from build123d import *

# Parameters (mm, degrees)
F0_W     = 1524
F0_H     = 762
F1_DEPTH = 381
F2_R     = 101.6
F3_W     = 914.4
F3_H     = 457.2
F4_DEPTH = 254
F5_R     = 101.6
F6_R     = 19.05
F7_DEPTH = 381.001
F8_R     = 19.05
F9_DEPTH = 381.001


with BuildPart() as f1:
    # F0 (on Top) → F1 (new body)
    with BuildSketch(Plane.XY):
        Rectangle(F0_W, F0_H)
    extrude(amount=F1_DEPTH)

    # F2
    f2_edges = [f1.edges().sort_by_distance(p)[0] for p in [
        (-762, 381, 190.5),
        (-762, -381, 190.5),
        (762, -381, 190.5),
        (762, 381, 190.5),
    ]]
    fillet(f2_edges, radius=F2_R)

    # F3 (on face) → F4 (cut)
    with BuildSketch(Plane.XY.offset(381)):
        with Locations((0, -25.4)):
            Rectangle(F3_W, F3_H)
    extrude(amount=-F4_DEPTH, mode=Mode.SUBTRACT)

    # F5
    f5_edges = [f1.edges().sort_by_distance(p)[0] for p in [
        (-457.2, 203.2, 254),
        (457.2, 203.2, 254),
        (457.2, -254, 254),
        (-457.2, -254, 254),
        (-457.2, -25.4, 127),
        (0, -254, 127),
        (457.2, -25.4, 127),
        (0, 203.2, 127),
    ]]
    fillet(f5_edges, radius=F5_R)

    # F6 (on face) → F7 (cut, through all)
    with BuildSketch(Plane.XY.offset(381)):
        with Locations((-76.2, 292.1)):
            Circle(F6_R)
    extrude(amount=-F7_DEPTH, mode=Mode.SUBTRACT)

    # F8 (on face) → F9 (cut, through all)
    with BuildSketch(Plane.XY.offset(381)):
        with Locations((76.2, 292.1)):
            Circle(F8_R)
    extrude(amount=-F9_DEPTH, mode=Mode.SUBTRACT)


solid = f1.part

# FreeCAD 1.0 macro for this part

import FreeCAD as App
import Part
import Sketcher
from FreeCAD import Vector
Q = App.Units.Quantity


def edges_at(feature, points):
    """Names of the edges that pass closest to the given points."""
    edges = feature.Shape.Edges
    near = lambda p: min(range(len(edges)), key=lambda i: edges[i].distToShape(Part.Vertex(*p))[0])
    return sorted({f"Edge{near(p) + 1}" for p in points})


def add_polygon(sketch, points):
    """Adds a closed chain of lines whose ends are joined by coincident constraints."""
    first, n = sketch.GeometryCount, len(points)
    for a, b in zip(points, points[1:] + points[:1]):
        sketch.addGeometry(Part.LineSegment(App.Vector(*a, 0), App.Vector(*b, 0)), False)
    for i in range(n):
        sketch.addConstraint(Sketcher.Constraint("Coincident", first + i, 2, first + (i + 1) % n, 1))

doc = App.newDocument("Part")
body = doc.addObject("PartDesign::Body", "Body")

# Sketch on XY plane
sketch1 = body.newObject("Sketcher::SketchObject", "Sketch")
sketch1.AttachmentSupport = (doc.getObject("XY_Plane"), [""])
sketch1.MapMode = "FlatFace"
add_polygon(sketch1, [(-762, 381), (-762, -381), (762, -381), (762, 381)])  # lines 0-3
sketch1.addConstraint([
    Sketcher.Constraint("Vertical", 0),
    Sketcher.Constraint("Horizontal", 1),
    Sketcher.Constraint("Vertical", 2),
    Sketcher.Constraint("Horizontal", 3),
    Sketcher.Constraint("Symmetric", 0, 2, 2, 2, -1, 1),
    Sketcher.Constraint("DistanceX", 1, 1, 1, 2, Q("60 in")),
    Sketcher.Constraint("DistanceY", 0, 2, 0, 1, Q("30 in")),
])
pad1 = body.newObject("PartDesign::Pad", "Pad")
pad1.Profile = sketch1
pad1.Length = Q("15 in")
doc.recompute()

fillet = body.newObject("PartDesign::Fillet", "Fillet")
fillet.Base = (pad1, edges_at(pad1, [
    (-762, 381, 190.5),
    (-762, -381, 190.5),
    (762, -381, 190.5),
    (762, 381, 190.5),
]))
fillet.Radius = Q("4 in")

# Sketch on XY plane
sketch2 = body.newObject("Sketcher::SketchObject", "Sketch001")
sketch2.AttachmentSupport = (doc.getObject("XY_Plane"), [""])
sketch2.MapMode = "FlatFace"
sketch2.AttachmentOffset = App.Placement(Vector(0, 0, 15 * 25.4), App.Rotation())
add_polygon(sketch2, [(-457, 203), (-457, -254), (457, -254), (457, 203)])  # lines 0-3
sketch2.addConstraint([
    Sketcher.Constraint("Vertical", 0),
    Sketcher.Constraint("Horizontal", 1),
    Sketcher.Constraint("Vertical", 2),
    Sketcher.Constraint("Horizontal", 3),
    Sketcher.Constraint("DistanceX", 1, 1, 1, 2, Q("36 in")),
    Sketcher.Constraint("DistanceY", 0, 2, 0, 1, Q("18 in")),
    Sketcher.Constraint("DistanceX", 0, 2, -1, 1, Q("18 in")),
    Sketcher.Constraint("DistanceY", 0, 2, -1, 1, Q("10 in")),
])
pocket1 = body.newObject("PartDesign::Pocket", "Pocket")
pocket1.Profile = sketch2
pocket1.Length = Q("10 in")
doc.recompute()

fillet2 = body.newObject("PartDesign::Fillet", "Fillet001")
fillet2.Base = (pocket1, edges_at(pocket1, [
    (-457.2, 203.2, 254),
    (457.2, 203.2, 254),
    (457.2, -254, 254),
    (-457.2, -254, 254),
    (-457.2, -25.4, 127),
    (0, -254, 127),
    (457.2, -25.4, 127),
    (0, 203.2, 127),
]))
fillet2.Radius = Q("4 in")

# Sketch on XY plane
sketch3 = body.newObject("Sketcher::SketchObject", "Sketch002")
sketch3.AttachmentSupport = (doc.getObject("XY_Plane"), [""])
sketch3.MapMode = "FlatFace"
sketch3.AttachmentOffset = App.Placement(Vector(0, 0, 15 * 25.4), App.Rotation())
sketch3.addGeometry(Part.Circle(Vector(-76, 292, 0), Vector(0, 0, 1), 19), False)
sketch3.addConstraint([
    Sketcher.Constraint("Diameter", 0, Q("1.5 in")),
    Sketcher.Constraint("DistanceX", 0, 3, -1, 1, Q("3 in")),
    Sketcher.Constraint("DistanceY", -1, 1, 0, 3, Q("11.5 in")),
])
pocket2 = body.newObject("PartDesign::Pocket", "Pocket001")
pocket2.Profile = sketch3
pocket2.Type = "ThroughAll"

# Sketch on XY plane
sketch4 = body.newObject("Sketcher::SketchObject", "Sketch003")
sketch4.AttachmentSupport = (doc.getObject("XY_Plane"), [""])
sketch4.MapMode = "FlatFace"
sketch4.AttachmentOffset = App.Placement(Vector(0, 0, 15 * 25.4), App.Rotation())
sketch4.addGeometry(Part.Circle(Vector(76, 292, 0), Vector(0, 0, 1), 19), False)
sketch4.addConstraint([
    Sketcher.Constraint("Diameter", 0, Q("1.5 in")),
    Sketcher.Constraint("DistanceX", -1, 1, 0, 3, Q("3 in")),
    Sketcher.Constraint("DistanceY", -1, 1, 0, 3, Q("11.5 in")),
])
pocket3 = body.newObject("PartDesign::Pocket", "Pocket002")
pocket3.Profile = sketch4
pocket3.Type = "ThroughAll"

doc.recompute()
